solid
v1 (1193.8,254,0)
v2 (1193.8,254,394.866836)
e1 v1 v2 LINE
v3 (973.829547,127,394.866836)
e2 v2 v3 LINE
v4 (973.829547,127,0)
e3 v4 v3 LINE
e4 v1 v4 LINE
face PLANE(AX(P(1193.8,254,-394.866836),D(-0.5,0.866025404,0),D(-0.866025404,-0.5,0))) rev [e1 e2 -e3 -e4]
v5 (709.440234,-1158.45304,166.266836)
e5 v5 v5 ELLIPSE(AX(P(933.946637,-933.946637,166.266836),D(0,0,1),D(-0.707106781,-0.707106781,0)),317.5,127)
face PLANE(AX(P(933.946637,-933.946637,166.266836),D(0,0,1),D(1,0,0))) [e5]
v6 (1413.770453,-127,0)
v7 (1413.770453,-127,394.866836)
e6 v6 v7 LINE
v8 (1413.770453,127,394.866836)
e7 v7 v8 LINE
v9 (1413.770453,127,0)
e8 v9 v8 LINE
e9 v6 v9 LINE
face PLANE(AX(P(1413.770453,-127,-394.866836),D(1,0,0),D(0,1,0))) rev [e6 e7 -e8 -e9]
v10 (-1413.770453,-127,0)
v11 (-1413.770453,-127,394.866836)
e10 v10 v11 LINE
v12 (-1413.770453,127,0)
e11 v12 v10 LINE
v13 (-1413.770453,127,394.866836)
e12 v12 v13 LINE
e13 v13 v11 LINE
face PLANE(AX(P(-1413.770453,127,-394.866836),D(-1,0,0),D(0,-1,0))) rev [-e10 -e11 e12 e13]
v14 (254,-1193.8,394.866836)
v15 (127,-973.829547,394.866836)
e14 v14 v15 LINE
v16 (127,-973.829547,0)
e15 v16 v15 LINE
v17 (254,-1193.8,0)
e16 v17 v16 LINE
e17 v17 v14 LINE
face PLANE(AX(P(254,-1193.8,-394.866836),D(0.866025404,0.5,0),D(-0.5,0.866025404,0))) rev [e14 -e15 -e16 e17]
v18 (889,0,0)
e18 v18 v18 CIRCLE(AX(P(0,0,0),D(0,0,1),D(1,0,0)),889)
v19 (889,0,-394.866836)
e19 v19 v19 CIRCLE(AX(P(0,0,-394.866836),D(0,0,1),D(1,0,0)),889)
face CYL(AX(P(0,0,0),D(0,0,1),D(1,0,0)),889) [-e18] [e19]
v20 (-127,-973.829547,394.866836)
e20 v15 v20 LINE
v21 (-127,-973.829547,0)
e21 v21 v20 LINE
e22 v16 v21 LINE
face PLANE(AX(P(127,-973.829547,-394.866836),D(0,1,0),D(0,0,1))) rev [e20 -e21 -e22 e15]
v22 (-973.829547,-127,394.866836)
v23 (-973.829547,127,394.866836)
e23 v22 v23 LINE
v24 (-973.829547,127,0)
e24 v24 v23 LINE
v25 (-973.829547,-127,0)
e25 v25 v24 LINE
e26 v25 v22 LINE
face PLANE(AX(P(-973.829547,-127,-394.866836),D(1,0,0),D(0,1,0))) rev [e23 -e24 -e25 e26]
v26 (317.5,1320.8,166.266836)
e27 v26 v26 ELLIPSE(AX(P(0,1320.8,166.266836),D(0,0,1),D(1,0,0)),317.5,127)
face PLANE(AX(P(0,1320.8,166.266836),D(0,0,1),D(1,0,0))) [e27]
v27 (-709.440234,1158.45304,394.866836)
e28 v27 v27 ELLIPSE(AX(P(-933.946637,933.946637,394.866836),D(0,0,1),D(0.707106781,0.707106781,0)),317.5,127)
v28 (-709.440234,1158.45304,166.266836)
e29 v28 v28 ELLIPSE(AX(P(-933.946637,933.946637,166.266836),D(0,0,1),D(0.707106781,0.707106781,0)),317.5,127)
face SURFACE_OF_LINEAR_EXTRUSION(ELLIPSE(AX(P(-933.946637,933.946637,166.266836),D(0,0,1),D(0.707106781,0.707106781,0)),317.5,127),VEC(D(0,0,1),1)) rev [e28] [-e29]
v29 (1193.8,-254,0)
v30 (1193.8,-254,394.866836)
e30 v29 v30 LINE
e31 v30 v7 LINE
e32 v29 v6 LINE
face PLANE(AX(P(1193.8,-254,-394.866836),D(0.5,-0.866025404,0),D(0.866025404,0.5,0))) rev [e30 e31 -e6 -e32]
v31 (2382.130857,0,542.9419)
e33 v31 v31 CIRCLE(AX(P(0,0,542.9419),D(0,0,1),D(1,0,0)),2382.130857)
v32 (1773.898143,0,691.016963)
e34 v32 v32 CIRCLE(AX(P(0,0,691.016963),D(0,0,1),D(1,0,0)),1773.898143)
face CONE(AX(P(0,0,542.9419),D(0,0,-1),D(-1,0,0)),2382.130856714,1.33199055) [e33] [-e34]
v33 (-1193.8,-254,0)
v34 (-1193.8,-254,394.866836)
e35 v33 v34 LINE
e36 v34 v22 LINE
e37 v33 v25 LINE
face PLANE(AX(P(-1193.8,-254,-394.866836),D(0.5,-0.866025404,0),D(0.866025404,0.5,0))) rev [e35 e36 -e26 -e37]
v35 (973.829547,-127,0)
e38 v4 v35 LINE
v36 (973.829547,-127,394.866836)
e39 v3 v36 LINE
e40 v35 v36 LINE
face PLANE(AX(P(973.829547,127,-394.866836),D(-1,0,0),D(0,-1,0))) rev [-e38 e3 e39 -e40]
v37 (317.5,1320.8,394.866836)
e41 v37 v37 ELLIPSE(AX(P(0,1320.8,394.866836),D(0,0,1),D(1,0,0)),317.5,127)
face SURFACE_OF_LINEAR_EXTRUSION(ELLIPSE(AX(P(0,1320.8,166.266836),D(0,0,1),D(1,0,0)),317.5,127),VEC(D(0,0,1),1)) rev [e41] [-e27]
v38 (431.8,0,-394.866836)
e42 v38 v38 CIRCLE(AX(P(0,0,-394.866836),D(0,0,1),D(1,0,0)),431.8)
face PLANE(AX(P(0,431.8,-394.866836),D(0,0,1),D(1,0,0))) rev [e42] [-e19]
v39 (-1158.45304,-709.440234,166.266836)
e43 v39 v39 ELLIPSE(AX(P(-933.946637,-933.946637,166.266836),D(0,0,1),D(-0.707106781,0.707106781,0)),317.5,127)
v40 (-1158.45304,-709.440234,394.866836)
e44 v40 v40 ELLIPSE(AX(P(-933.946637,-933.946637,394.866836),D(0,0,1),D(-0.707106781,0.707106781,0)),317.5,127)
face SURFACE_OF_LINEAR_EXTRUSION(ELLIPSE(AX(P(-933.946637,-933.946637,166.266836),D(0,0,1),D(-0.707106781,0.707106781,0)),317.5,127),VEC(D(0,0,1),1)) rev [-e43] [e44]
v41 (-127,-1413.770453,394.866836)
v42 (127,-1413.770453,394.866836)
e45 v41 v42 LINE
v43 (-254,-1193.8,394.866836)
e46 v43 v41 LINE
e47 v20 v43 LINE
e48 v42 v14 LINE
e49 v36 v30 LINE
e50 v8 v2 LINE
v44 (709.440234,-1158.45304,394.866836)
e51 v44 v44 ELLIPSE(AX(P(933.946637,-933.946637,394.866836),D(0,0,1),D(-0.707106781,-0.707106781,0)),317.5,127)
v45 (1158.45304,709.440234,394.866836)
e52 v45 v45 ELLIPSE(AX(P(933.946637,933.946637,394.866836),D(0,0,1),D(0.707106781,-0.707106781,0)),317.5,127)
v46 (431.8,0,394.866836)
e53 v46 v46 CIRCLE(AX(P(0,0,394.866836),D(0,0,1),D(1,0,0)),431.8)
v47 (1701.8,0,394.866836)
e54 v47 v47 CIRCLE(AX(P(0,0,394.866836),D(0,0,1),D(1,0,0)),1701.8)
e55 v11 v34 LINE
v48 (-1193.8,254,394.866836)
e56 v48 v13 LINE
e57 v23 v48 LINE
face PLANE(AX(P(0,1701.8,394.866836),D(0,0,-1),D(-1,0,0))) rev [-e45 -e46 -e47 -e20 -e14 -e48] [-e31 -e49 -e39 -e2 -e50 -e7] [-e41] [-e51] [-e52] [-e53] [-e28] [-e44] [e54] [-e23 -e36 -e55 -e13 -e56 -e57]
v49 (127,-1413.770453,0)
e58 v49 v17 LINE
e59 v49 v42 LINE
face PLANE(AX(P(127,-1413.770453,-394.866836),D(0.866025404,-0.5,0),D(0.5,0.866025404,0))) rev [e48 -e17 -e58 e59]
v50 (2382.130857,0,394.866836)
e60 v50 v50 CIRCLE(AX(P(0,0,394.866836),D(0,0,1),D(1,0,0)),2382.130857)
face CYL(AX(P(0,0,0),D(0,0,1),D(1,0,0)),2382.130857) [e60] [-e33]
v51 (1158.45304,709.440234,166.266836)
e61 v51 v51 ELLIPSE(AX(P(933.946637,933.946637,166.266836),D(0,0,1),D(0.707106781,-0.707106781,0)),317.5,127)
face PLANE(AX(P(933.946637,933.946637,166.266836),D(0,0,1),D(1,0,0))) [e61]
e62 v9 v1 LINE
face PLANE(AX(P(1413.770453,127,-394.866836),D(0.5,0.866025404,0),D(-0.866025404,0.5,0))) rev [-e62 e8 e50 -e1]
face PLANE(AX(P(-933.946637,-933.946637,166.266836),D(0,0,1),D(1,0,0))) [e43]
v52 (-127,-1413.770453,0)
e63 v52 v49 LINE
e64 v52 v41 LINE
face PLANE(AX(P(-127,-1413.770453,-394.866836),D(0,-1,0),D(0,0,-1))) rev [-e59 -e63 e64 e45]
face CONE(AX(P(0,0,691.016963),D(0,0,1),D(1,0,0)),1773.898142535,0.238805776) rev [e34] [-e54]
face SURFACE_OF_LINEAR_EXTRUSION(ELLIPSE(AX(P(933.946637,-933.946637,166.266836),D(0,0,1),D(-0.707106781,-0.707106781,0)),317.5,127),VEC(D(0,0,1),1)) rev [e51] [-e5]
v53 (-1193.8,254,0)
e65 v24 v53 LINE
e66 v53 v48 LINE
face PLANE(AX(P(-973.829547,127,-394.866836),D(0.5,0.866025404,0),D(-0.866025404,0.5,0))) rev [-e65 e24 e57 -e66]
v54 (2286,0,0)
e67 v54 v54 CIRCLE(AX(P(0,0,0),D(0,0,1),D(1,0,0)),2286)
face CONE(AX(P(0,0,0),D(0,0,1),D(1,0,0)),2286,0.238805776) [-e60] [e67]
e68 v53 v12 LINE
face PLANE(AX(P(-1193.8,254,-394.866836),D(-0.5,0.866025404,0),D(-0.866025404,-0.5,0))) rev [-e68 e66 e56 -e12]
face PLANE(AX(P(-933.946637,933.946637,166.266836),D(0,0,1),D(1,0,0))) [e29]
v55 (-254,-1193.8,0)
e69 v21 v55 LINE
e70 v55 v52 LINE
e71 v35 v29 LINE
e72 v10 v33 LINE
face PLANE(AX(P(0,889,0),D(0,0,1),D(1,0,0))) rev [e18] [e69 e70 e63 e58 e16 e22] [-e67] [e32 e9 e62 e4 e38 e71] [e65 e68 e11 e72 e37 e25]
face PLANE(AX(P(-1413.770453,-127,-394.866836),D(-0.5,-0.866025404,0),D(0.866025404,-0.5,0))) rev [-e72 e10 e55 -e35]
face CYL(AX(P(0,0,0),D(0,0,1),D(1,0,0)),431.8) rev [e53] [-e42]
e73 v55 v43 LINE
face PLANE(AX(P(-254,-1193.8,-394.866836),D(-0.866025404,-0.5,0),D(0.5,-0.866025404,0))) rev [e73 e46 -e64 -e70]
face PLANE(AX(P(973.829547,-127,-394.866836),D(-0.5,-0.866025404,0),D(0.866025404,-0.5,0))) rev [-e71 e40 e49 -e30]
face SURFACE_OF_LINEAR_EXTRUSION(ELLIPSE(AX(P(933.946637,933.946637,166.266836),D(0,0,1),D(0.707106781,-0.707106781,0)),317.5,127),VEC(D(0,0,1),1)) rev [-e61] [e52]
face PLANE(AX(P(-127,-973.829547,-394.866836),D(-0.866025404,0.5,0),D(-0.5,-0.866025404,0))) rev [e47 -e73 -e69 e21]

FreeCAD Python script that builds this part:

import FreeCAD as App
import Part
import Sketcher
from FreeCAD import Vector
Q = App.Units.Quantity

doc = App.newDocument("Part")
params = doc.addObject("Spreadsheet::Sheet", "Params")
for row, (alias, value) in enumerate([
    ("sketch1_width", "18 in"),
    ("sketch1_width2", "55 in"),
    ("sketch1_width3", "50 in"),
    ("sketch1_length", "16 in"),
    ("sketch1_length2", "12 in"),
    ("revolution_angle", "360 deg"),
    ("pocket1_length", "9 in"),
    ("sketch3_width", "10 in"),
    ("sketch3_length", "10 in"),
], start=1):
    params.set(f"A{row}", alias)
    params.set(f"B{row}", "=" + value)
    params.setAlias(f"B{row}", alias)

body = doc.addObject("PartDesign::Body", "Body")

# Sketch on YZ plane
sketch1 = body.newObject("Sketcher::SketchObject", "Sketch")
sketch1.AttachmentSupport = (doc.getObject("YZ_Plane"), [""])
sketch1.MapMode = "FlatFace"
sketch1.addGeometry([
    Part.LineSegment(Vector(432, 395, 0), Vector(432, -395, 0)),  # 0
    Part.LineSegment(Vector(432, -395, 0), Vector(889, -395, 0)),  # 1
    Part.LineSegment(Vector(889, -395, 0), Vector(889, 0, 0)),  # 2
    Part.LineSegment(Vector(889, 0, 0), Vector(2286, 0, 0)),  # 3
    Part.LineSegment(Vector(2286, 0, 0), Vector(2382, 395, 0)),  # 4
    Part.LineSegment(Vector(2382, 395, 0), Vector(2382, 543, 0)),  # 5
    Part.LineSegment(Vector(2382, 543, 0), Vector(1774, 691, 0)),  # 6
    Part.LineSegment(Vector(1774, 691, 0), Vector(1702, 395, 0)),  # 7
    Part.LineSegment(Vector(1702, 395, 0), Vector(432, 395, 0)),  # 8
], False)
sketch1.addConstraint([
    Sketcher.Constraint("Coincident", 0, 2, 1, 1),
    Sketcher.Constraint("Coincident", 1, 2, 2, 1),
    Sketcher.Constraint("Coincident", 2, 2, 3, 1),
    Sketcher.Constraint("Coincident", 3, 2, 4, 1),
    Sketcher.Constraint("Coincident", 4, 2, 5, 1),
    Sketcher.Constraint("Coincident", 5, 2, 6, 1),
    Sketcher.Constraint("Coincident", 6, 2, 7, 1),
    Sketcher.Constraint("Coincident", 7, 2, 8, 1),
    Sketcher.Constraint("Coincident", 8, 2, 0, 1),
    Sketcher.Constraint("Vertical", 0),
    Sketcher.Constraint("Horizontal", 1),
    Sketcher.Constraint("Vertical", 2),
    Sketcher.Constraint("Horizontal", 3),
    Sketcher.Constraint("Vertical", 5),
    Sketcher.Constraint("Horizontal", 8),
    Sketcher.Constraint("PointOnObject", 2, 2, -1),
    Sketcher.Constraint("Perpendicular", 4, 6),
    Sketcher.Constraint("Perpendicular", 6, 7),
    Sketcher.Constraint("Horizontal", 4, 2, 7, 2),
    Sketcher.Constraint("DistanceX", 1, 1, 1, 2, Q("18 in")),
    Sketcher.Constraint("DistanceX", 3, 1, 3, 2, Q("55 in")),
    Sketcher.Constraint("DistanceX", 8, 2, 8, 1, Q("50 in")),
    Sketcher.Constraint("Distance", 4, Q("16 in")),
    Sketcher.Constraint("Distance", 7, Q("12 in")),
    Sketcher.Constraint("DistanceX", -1, 1, 0, 2, Q("17 in")),
    Sketcher.Constraint("DistanceY", -1, 1, 5, 2, 542.9419),
    Sketcher.Constraint("DistanceY", 1, 2, 6, 2, 1085.8838),
])
sketch1.setExpression("Constraints[19]", "Params.sketch1_width")
sketch1.setExpression("Constraints[20]", "Params.sketch1_width2")
sketch1.setExpression("Constraints[21]", "Params.sketch1_width3")
sketch1.setExpression("Constraints[22]", "Params.sketch1_length")
sketch1.setExpression("Constraints[23]", "Params.sketch1_length2")
revolution = body.newObject("PartDesign::Revolution", "Revolution")
revolution.Profile = sketch1
revolution.ReferenceAxis = (sketch1, ["V_Axis"])
revolution.setExpression("Angle", "Params.revolution_angle")

# Sketch on XY plane
sketch2 = body.newObject("Sketcher::SketchObject", "Sketch001")
sketch2.AttachmentSupport = (doc.getObject("XY_Plane"), [""])
sketch2.MapMode = "FlatFace"
sketch2.AttachmentOffset = App.Placement(Vector(0, 0, 394.866836), App.Rotation())
sketch2.addGeometry([
    Part.Ellipse(Vector(-317.5, 1320.8, 0), Vector(0, 1193.8, 0), Vector(0, 1320.8, 0)),  # 0
    Part.Ellipse(Vector(709.440234, 1158.45304, 0), Vector(844.144075, 844.144075, 0), Vector(933.946637, 933.946637, 0)),  # 1
    Part.Ellipse(Vector(709.440234, -1158.45304, 0), Vector(1023.749198, -1023.749198, 0), Vector(933.946637, -933.946637, 0)),  # 2
    Part.Ellipse(Vector(-1158.45304, -709.440234, 0), Vector(-1023.749198, -1023.749198, 0), Vector(-933.946637, -933.946637, 0)),  # 3
    Part.Ellipse(Vector(-709.440234, 1158.45304, 0), Vector(-1023.749198, 1023.749198, 0), Vector(-933.946637, 933.946637, 0)),  # 4
], False)
sketch2.addConstraint([
    Sketcher.Constraint("Block", 0),
    Sketcher.Constraint("Block", 1),
    Sketcher.Constraint("Block", 2),
    Sketcher.Constraint("Block", 3),
    Sketcher.Constraint("Block", 4),
])
pocket1 = body.newObject("PartDesign::Pocket", "Pocket")
pocket1.Profile = sketch2
pocket1.setExpression("Length", "Params.pocket1_length")

# Sketch on XY plane
sketch3 = body.newObject("Sketcher::SketchObject", "Sketch002")
sketch3.AttachmentSupport = (doc.getObject("XY_Plane"), [""])
sketch3.MapMode = "FlatFace"
sketch3.AttachmentOffset = App.Placement(Vector(0, 0, 394.866836), App.Rotation())
sketch3.addGeometry([
    Part.LineSegment(Vector(254, -1194, 0), Vector(127, -974, 0)),  # 0
    Part.LineSegment(Vector(127, -974, 0), Vector(-127, -974, 0)),  # 1
    Part.LineSegment(Vector(-127, -974, 0), Vector(-254, -1194, 0)),  # 2
    Part.LineSegment(Vector(-254, -1194, 0), Vector(-127, -1414, 0)),  # 3
    Part.LineSegment(Vector(-127, -1414, 0), Vector(127, -1414, 0)),  # 4
    Part.LineSegment(Vector(127, -1414, 0), Vector(254, -1194, 0)),  # 5
    Part.LineSegment(Vector(-1194, -254, 0), Vector(-974, -127, 0)),  # 6
    Part.LineSegment(Vector(-974, -127, 0), Vector(-974, 127, 0)),  # 7
    Part.LineSegment(Vector(-974, 127, 0), Vector(-1194, 254, 0)),  # 8
    Part.LineSegment(Vector(-1194, 254, 0), Vector(-1414, 127, 0)),  # 9
    Part.LineSegment(Vector(-1414, 127, 0), Vector(-1414, -127, 0)),  # 10
    Part.LineSegment(Vector(-1414, -127, 0), Vector(-1194, -254, 0)),  # 11
    Part.LineSegment(Vector(1194, 254, 0), Vector(974, 127, 0)),  # 12
    Part.LineSegment(Vector(974, 127, 0), Vector(974, -127, 0)),  # 13
    Part.LineSegment(Vector(974, -127, 0), Vector(1194, -254, 0)),  # 14
    Part.LineSegment(Vector(1194, -254, 0), Vector(1414, -127, 0)),  # 15
    Part.LineSegment(Vector(1414, -127, 0), Vector(1414, 127, 0)),  # 16
    Part.LineSegment(Vector(1414, 127, 0), Vector(1194, 254, 0)),  # 17
], False)
sketch3.addConstraint([
    Sketcher.Constraint("Coincident", 0, 2, 1, 1),
    Sketcher.Constraint("Coincident", 1, 2, 2, 1),
    Sketcher.Constraint("Coincident", 2, 2, 3, 1),
    Sketcher.Constraint("Coincident", 3, 2, 4, 1),
    Sketcher.Constraint("Coincident", 4, 2, 5, 1),
    Sketcher.Constraint("Coincident", 5, 2, 0, 1),
    Sketcher.Constraint("Coincident", 6, 2, 7, 1),
    Sketcher.Constraint("Coincident", 7, 2, 8, 1),
    Sketcher.Constraint("Coincident", 8, 2, 9, 1),
    Sketcher.Constraint("Coincident", 9, 2, 10, 1),
    Sketcher.Constraint("Coincident", 10, 2, 11, 1),
    Sketcher.Constraint("Coincident", 11, 2, 6, 1),
    Sketcher.Constraint("Coincident", 12, 2, 13, 1),
    Sketcher.Constraint("Coincident", 13, 2, 14, 1),
    Sketcher.Constraint("Coincident", 14, 2, 15, 1),
    Sketcher.Constraint("Coincident", 15, 2, 16, 1),
    Sketcher.Constraint("Coincident", 16, 2, 17, 1),
    Sketcher.Constraint("Coincident", 17, 2, 12, 1),
    Sketcher.Constraint("Horizontal", 1),
    Sketcher.Constraint("Horizontal", 4),
    Sketcher.Constraint("Vertical", 7),
    Sketcher.Constraint("Vertical", 10),
    Sketcher.Constraint("Vertical", 13),
    Sketcher.Constraint("Vertical", 16),
    Sketcher.Constraint("Symmetric", 6, 2, 12, 2, -1, 1),
    Sketcher.Constraint("Symmetric", 8, 2, 14, 2, -1, 1),
    Sketcher.Constraint("Symmetric", 9, 2, 15, 2, -1, 1),
    Sketcher.Constraint("Symmetric", 11, 2, 17, 2, -1, 1),
    Sketcher.Constraint("Symmetric", 2, 2, 5, 2, -2),
    Sketcher.Constraint("Symmetric", 11, 2, 14, 2, -2),
    Sketcher.Constraint("Parallel", 0, 3),
    Sketcher.Constraint("Parallel", 2, 5),
    Sketcher.Constraint("Perpendicular", 3, 6),
    Sketcher.Constraint("Perpendicular", 5, 8),
    Sketcher.Constraint("Parallel", 6, 9),
    Sketcher.Constraint("Parallel", 8, 11),
    Sketcher.Constraint("Parallel", 11, 14),
    Sketcher.Constraint("Parallel", 14, 17),
    Sketcher.Constraint("Horizontal", 7, 2, 9, 2),
    Sketcher.Constraint("Horizontal", 6, 2, 10, 2),
    Sketcher.Constraint("Vertical", 1, 2, 3, 2),
    Sketcher.Constraint("Equal", 4, 7),
    Sketcher.Constraint("Equal", 5, 6),
    Sketcher.Constraint("DistanceX", 1, 2, 1, 1, Q("10 in")),
    Sketcher.Constraint("Distance", 0, Q("10 in")),
    Sketcher.Constraint("DistanceX", 2, 2, -1, 1, Q("10 in")),
    Sketcher.Constraint("DistanceY", 2, 2, -1, 1, Q("47 in")),
    Sketcher.Constraint("DistanceX", 8, 2, -1, 1, Q("47 in")),
])
sketch3.setExpression("Constraints[43]", "Params.sketch3_width")
sketch3.setExpression("Constraints[44]", "Params.sketch3_length")
pocket2 = body.newObject("PartDesign::Pocket", "Pocket001")
pocket2.Profile = sketch3
pocket2.Type = "ThroughAll"

doc.recompute()
